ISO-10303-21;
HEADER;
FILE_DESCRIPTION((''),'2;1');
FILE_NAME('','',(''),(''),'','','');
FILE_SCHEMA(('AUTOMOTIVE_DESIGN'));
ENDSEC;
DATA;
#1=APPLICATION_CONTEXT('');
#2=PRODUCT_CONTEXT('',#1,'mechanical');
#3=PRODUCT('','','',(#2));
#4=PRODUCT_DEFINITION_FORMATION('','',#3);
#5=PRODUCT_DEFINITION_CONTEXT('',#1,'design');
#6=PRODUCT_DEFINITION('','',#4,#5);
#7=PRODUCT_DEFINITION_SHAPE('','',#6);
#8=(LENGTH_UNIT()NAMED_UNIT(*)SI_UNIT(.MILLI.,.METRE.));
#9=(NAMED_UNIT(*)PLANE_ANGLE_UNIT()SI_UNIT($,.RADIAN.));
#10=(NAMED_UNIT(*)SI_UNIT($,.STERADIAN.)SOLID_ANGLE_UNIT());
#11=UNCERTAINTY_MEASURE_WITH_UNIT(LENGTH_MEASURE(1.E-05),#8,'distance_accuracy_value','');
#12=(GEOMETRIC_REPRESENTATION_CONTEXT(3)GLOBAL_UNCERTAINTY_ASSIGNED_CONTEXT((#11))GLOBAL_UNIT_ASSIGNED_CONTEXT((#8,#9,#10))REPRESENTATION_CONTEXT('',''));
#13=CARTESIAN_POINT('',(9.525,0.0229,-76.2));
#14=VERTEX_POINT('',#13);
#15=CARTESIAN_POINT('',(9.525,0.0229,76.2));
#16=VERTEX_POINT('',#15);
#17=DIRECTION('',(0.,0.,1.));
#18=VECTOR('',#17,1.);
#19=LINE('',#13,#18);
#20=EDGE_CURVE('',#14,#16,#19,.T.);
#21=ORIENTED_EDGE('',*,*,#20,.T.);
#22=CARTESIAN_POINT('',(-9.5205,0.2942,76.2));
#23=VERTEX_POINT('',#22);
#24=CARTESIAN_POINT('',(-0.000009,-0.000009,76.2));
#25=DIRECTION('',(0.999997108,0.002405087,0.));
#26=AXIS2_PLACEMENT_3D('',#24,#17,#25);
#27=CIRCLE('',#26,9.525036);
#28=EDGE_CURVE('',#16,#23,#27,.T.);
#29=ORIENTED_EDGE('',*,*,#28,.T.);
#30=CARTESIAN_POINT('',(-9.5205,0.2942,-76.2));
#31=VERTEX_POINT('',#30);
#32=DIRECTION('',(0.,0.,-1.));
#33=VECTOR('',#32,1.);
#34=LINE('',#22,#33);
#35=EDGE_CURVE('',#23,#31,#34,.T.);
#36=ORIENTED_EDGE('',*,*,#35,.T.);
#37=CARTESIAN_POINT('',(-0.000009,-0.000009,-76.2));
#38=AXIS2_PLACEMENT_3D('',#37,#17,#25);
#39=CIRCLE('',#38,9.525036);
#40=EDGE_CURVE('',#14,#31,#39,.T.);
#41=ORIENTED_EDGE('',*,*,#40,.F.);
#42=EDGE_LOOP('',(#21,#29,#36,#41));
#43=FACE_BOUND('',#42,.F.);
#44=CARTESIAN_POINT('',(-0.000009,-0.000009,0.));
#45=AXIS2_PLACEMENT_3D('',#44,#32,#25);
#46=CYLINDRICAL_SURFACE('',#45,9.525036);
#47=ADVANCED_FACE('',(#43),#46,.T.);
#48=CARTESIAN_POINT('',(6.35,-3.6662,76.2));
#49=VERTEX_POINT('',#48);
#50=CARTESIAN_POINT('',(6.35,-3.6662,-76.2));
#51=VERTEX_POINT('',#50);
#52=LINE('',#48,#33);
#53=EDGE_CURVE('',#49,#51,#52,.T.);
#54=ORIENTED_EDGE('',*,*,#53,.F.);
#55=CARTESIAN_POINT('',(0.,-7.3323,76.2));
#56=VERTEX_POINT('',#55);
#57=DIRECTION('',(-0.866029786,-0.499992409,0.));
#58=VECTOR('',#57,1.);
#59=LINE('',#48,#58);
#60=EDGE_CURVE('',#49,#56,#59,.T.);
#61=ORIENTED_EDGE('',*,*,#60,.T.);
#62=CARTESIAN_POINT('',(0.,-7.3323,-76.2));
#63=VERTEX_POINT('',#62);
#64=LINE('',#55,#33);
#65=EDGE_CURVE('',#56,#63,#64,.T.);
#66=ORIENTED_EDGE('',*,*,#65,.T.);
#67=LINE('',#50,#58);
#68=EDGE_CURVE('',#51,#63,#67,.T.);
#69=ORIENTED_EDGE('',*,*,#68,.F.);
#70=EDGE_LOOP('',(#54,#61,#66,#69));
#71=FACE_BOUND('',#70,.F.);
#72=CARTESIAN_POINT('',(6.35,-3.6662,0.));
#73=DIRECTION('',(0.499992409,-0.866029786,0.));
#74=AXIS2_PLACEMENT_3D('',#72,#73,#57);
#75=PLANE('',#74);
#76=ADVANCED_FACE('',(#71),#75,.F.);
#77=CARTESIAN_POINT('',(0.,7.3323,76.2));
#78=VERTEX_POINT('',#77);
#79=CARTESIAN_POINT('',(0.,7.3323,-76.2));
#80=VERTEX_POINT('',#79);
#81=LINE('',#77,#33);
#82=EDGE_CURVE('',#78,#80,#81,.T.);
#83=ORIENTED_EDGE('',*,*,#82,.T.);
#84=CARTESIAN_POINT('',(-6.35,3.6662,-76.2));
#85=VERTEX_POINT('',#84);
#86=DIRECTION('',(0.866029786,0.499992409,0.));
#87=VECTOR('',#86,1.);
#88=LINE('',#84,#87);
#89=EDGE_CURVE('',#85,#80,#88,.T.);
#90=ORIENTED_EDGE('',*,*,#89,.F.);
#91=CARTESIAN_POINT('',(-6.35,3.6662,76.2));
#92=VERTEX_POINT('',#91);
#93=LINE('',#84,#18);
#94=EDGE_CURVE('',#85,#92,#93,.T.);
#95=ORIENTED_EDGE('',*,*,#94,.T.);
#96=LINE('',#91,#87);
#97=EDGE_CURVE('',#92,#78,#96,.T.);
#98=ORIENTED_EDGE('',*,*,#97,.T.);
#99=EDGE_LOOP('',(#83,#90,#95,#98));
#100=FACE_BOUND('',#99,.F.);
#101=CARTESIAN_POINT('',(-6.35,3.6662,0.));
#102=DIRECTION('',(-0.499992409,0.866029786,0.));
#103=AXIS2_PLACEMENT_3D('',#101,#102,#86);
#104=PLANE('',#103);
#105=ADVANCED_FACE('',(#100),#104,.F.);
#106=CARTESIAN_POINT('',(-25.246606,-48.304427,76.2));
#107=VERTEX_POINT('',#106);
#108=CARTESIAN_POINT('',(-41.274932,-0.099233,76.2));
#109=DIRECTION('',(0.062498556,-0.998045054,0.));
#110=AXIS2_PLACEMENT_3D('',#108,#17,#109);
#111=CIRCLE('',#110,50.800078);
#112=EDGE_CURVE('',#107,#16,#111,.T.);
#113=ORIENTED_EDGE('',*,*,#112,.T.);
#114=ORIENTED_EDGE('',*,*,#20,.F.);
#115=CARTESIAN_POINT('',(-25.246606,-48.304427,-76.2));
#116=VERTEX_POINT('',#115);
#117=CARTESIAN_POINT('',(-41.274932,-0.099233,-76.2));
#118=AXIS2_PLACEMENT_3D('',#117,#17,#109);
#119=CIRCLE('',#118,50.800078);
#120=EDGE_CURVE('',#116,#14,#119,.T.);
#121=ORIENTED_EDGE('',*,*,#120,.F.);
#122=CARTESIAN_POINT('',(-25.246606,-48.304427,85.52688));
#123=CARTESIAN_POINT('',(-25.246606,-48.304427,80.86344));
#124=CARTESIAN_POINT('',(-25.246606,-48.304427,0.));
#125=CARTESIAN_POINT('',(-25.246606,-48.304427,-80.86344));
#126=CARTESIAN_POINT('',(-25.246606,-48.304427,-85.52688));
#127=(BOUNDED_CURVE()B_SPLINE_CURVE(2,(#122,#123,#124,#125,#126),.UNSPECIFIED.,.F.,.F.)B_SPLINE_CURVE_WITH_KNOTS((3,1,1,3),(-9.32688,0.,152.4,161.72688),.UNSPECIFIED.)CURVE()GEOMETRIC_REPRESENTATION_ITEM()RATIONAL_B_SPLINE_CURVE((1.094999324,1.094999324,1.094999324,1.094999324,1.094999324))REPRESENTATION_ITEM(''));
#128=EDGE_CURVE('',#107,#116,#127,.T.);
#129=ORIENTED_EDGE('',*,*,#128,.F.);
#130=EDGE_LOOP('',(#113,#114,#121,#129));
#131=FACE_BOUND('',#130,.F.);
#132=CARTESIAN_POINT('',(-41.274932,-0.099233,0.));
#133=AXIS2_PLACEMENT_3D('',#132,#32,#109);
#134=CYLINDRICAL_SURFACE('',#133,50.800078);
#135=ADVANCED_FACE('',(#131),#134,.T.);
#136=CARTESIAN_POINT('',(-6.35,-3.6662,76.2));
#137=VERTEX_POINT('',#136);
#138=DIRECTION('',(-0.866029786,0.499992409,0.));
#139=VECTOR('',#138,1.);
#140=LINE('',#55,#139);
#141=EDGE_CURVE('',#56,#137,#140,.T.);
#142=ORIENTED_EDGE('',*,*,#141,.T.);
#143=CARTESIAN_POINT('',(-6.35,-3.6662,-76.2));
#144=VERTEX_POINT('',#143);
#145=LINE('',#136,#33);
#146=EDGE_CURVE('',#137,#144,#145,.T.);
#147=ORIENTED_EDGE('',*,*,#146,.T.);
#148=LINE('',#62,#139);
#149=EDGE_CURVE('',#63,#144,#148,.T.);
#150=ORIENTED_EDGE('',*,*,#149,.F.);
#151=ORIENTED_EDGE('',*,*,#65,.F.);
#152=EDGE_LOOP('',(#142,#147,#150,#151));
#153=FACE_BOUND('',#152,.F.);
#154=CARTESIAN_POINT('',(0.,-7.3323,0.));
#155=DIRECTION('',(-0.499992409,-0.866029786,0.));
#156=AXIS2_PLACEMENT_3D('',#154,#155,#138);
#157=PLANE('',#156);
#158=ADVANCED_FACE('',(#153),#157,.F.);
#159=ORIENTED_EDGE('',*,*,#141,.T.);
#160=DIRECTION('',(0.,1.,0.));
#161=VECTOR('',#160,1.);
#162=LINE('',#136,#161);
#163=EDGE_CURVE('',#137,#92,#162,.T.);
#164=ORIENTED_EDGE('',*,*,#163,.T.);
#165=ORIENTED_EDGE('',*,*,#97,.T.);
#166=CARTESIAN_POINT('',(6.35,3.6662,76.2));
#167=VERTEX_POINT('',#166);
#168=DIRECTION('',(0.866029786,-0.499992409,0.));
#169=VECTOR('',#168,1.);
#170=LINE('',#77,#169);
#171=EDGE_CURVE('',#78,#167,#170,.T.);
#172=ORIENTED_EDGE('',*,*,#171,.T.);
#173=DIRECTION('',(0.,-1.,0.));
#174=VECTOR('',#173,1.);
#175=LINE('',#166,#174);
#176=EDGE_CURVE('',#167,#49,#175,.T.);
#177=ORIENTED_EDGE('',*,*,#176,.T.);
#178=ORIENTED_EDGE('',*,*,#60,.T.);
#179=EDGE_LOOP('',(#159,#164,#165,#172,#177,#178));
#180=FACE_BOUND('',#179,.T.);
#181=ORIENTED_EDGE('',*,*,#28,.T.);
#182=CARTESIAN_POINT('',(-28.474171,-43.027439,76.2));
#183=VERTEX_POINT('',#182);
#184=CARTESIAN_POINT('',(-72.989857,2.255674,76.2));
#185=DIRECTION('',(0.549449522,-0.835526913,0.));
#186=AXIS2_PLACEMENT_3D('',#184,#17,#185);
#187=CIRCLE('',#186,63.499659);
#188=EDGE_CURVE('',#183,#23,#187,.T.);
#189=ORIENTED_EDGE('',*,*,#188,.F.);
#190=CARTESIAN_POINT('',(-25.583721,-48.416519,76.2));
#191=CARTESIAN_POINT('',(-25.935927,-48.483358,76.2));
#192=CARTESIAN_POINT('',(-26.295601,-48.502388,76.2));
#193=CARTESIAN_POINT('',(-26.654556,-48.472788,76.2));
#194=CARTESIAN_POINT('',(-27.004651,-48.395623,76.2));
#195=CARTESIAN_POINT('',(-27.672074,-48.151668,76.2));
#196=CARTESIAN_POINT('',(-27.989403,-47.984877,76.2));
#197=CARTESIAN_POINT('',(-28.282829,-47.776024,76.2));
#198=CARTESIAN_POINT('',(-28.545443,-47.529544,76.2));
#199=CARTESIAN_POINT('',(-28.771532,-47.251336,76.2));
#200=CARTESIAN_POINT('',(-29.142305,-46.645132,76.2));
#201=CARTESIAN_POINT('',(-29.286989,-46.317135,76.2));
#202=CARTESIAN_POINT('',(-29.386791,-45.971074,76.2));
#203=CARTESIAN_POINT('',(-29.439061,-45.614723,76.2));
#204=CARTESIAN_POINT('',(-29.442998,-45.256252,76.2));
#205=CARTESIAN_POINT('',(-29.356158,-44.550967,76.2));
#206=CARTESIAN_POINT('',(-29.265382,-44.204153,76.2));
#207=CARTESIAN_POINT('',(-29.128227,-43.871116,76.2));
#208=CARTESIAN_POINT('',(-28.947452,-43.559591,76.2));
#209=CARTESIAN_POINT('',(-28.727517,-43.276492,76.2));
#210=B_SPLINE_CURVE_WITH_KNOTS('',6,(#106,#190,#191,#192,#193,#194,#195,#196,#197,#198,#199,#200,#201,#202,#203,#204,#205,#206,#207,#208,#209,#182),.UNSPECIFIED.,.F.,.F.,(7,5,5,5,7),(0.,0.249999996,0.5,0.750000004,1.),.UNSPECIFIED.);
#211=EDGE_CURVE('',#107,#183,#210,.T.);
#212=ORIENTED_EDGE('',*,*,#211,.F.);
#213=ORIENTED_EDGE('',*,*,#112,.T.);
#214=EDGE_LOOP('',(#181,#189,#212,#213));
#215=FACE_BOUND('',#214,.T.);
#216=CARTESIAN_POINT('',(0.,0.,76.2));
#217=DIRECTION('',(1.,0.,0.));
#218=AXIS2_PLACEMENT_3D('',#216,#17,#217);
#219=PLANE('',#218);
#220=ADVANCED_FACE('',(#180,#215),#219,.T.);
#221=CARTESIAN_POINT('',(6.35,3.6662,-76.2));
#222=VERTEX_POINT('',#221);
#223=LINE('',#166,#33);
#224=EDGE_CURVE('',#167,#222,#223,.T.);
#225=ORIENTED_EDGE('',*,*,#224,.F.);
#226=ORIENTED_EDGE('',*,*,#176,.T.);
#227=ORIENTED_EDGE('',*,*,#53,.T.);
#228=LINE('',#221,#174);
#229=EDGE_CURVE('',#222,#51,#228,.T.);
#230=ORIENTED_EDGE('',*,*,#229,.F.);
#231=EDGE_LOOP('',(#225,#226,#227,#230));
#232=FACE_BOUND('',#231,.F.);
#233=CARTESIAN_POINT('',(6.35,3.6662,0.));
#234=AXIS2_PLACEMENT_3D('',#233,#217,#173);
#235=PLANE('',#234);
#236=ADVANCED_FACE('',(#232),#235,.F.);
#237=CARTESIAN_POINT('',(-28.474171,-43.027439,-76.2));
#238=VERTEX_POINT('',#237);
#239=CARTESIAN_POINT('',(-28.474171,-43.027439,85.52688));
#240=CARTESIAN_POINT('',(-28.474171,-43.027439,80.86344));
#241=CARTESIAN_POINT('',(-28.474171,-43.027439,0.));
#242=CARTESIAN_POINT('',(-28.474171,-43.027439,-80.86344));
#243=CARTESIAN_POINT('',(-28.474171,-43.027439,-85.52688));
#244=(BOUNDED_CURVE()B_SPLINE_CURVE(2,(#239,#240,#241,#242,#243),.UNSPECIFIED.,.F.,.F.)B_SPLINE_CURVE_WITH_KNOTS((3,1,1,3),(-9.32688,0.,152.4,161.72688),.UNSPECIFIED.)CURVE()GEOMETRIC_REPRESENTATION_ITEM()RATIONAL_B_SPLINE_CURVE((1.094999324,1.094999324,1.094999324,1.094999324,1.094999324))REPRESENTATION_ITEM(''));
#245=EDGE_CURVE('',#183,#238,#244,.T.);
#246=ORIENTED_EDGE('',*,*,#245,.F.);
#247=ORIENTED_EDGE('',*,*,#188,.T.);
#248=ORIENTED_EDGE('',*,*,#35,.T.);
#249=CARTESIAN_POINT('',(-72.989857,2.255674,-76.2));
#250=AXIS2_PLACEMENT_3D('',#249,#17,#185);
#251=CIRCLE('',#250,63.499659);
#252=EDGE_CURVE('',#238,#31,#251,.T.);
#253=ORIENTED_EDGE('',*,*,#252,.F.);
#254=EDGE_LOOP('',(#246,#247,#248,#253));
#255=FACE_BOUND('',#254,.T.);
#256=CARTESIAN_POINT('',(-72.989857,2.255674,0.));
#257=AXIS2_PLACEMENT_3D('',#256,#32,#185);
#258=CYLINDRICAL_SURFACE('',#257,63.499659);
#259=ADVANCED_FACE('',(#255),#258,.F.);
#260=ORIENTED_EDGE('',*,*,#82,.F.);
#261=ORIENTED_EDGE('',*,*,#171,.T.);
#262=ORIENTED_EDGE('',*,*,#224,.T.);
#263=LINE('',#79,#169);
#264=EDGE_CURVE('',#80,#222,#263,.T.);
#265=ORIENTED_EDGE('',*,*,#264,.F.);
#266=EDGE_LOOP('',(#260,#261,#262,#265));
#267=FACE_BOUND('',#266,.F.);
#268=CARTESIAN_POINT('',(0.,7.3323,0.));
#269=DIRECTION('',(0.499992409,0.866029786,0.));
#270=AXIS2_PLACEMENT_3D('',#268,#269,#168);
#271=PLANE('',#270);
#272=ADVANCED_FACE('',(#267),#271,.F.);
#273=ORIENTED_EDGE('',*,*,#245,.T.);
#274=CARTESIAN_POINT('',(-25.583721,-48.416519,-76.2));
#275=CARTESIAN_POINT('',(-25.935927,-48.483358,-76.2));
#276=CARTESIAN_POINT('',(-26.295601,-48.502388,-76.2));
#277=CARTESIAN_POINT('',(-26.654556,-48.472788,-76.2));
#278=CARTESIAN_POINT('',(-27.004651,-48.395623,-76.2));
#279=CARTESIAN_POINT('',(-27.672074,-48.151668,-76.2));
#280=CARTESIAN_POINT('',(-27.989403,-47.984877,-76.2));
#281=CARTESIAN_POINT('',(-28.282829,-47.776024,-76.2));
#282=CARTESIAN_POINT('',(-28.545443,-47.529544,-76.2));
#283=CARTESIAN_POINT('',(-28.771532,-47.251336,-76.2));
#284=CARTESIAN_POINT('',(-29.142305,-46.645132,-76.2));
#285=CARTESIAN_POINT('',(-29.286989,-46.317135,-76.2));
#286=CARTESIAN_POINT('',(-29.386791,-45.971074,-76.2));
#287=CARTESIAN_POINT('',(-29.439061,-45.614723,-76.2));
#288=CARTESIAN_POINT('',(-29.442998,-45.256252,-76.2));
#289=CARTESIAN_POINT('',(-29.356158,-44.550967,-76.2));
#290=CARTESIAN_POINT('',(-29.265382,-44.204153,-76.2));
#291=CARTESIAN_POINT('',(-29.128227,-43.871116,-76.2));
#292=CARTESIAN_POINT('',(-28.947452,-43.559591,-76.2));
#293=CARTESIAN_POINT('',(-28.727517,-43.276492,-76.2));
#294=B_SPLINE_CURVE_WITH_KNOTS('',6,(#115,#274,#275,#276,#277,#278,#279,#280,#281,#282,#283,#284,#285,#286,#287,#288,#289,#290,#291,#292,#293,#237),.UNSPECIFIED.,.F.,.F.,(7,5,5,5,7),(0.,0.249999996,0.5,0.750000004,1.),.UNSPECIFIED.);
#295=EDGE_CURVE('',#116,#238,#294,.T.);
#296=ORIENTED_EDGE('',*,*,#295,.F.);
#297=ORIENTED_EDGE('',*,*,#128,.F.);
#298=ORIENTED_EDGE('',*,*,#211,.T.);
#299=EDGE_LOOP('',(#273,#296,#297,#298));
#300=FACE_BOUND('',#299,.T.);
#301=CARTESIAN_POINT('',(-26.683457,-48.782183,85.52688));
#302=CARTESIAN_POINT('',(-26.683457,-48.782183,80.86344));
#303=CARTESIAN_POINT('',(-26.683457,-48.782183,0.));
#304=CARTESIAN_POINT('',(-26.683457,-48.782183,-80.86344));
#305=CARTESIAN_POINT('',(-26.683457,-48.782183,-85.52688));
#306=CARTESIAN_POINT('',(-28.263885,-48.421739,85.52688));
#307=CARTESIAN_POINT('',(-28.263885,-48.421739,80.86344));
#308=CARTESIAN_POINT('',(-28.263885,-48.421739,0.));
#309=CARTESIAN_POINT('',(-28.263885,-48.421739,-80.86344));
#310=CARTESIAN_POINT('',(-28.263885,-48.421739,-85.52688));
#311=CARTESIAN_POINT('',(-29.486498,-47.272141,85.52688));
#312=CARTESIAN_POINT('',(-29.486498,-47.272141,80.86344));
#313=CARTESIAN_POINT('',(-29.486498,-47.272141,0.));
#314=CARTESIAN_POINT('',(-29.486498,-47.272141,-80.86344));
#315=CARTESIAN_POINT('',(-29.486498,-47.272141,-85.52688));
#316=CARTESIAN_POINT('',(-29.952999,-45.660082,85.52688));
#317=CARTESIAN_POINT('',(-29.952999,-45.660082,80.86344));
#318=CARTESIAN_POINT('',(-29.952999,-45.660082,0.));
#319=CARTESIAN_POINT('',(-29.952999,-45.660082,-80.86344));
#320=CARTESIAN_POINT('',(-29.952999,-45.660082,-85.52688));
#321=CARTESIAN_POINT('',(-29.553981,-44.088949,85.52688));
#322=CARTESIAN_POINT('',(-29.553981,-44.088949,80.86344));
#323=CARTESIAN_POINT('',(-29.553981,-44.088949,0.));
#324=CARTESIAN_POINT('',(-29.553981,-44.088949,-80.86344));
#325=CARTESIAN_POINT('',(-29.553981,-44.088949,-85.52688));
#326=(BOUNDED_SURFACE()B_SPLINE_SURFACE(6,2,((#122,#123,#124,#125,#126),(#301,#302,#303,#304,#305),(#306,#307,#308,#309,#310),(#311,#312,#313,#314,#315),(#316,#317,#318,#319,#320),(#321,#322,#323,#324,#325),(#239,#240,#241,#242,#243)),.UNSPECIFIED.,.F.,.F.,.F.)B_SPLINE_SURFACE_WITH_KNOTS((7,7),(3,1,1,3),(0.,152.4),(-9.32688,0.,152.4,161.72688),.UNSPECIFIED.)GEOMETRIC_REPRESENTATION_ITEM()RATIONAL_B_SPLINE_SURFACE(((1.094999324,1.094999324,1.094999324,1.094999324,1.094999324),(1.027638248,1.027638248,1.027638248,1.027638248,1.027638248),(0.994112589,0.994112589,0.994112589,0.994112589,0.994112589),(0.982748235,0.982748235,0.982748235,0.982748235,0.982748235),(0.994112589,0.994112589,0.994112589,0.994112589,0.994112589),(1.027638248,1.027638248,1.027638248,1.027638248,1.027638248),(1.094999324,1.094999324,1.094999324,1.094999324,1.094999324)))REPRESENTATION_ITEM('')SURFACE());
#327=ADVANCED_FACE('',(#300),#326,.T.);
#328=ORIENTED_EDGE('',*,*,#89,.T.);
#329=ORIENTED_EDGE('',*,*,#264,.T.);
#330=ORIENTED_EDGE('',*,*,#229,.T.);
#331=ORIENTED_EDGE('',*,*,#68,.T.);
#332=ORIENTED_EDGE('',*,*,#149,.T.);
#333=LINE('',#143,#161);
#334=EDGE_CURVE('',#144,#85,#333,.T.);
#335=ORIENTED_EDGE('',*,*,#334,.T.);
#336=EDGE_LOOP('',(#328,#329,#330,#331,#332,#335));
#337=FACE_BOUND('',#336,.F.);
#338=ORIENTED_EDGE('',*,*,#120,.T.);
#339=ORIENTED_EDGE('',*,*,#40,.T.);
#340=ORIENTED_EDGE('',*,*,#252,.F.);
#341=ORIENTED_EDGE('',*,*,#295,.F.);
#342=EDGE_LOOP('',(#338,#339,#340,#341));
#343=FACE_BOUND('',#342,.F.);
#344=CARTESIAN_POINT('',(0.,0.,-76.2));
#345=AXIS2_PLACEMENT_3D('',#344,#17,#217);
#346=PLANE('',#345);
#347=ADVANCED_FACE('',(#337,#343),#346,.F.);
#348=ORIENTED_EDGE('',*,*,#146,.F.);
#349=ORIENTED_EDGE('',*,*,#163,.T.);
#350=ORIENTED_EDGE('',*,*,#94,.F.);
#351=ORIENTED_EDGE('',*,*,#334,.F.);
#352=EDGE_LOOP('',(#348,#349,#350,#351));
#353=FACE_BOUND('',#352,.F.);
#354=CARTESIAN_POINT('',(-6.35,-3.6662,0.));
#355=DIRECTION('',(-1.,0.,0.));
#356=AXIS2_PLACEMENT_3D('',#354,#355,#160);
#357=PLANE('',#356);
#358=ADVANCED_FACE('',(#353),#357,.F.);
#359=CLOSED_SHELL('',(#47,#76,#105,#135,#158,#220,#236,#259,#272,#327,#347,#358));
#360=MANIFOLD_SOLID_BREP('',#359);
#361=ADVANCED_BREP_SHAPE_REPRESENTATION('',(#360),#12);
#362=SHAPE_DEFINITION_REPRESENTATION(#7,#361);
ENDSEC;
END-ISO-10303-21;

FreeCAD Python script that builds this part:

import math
import FreeCAD as App
import Part
import Sketcher
from FreeCAD import Vector
Q = App.Units.Quantity


def edges_at(feature, points):
    """Names of the edges that pass closest to the given points."""
    edges = feature.Shape.Edges
    near = lambda p: min(range(len(edges)), key=lambda i: edges[i].distToShape(Part.Vertex(*p))[0])
    return sorted({f"Edge{near(p) + 1}" for p in points})

doc = App.newDocument("Part")
params = doc.addObject("Spreadsheet::Sheet", "Params")
for row, (alias, value) in enumerate([
    ("sketch1_radius", "2 in"),
    ("sketch1_radius2", "2.5 in"),
    ("sketch1_radius3", "0.375 in"),
    ("pad1_length", "6 in"),
    ("fillet_radius", "0.125 in"),
], start=1):
    params.set(f"A{row}", alias)
    params.set(f"B{row}", "=" + value)
    params.setAlias(f"B{row}", alias)

body = doc.addObject("PartDesign::Body", "Body")

# Sketch on XY plane
sketch1 = body.newObject("Sketcher::SketchObject", "Sketch")
sketch1.AttachmentSupport = (doc.getObject("XY_Plane"), [""])
sketch1.MapMode = "FlatFace"
sketch1.addGeometry([
    Part.ArcOfCircle(Part.Circle(Vector(-41, 0, 0), Vector(0, 0, 1), 51), math.radians(-86), math.radians(0)),  # 0
    Part.ArcOfCircle(Part.Circle(Vector(0, 0, 0), Vector(0, 0, 1), 10), math.radians(0), math.radians(178)),  # 1
    Part.ArcOfCircle(Part.Circle(Vector(-73, 2, 0), Vector(0, 0, 1), 63), math.radians(-57), math.radians(-2)),  # 2
    Part.LineSegment(Vector(-6, -4, 0), Vector(-6, 4, 0)),  # 3
    Part.LineSegment(Vector(-6, 4, 0), Vector(0, 7, 0)),  # 4
    Part.LineSegment(Vector(0, 7, 0), Vector(6, 4, 0)),  # 5
    Part.LineSegment(Vector(6, 4, 0), Vector(6, -4, 0)),  # 6
    Part.LineSegment(Vector(6, -4, 0), Vector(0, -7, 0)),  # 7
    Part.LineSegment(Vector(0, -7, 0), Vector(-6, -4, 0)),  # 8
], False)
sketch1.addConstraint([
    Sketcher.Constraint("Tangent", 0, 2, 1, 1),
    Sketcher.Constraint("Tangent", 1, 2, 2, 2),
    Sketcher.Constraint("Coincident", 2, 1, 0, 1),
    Sketcher.Constraint("Coincident", 3, 2, 4, 1),
    Sketcher.Constraint("Coincident", 4, 2, 5, 1),
    Sketcher.Constraint("Coincident", 5, 2, 6, 1),
    Sketcher.Constraint("Coincident", 6, 2, 7, 1),
    Sketcher.Constraint("Coincident", 7, 2, 8, 1),
    Sketcher.Constraint("Coincident", 8, 2, 3, 1),
    Sketcher.Constraint("Vertical", 3),
    Sketcher.Constraint("Vertical", 6),
    Sketcher.Constraint("Coincident", 1, 3, -1, 1),
    Sketcher.Constraint("Symmetric", 3, 2, 6, 2, -1, 1),
    Sketcher.Constraint("Symmetric", 4, 2, 7, 2, -1, 1),
    Sketcher.Constraint("PointOnObject", 4, 2, -2),
    Sketcher.Constraint("Parallel", 5, 8),
    Sketcher.Constraint("Horizontal", 3, 2, 5, 2),
    Sketcher.Constraint("Radius", 0, Q("2 in")),
    Sketcher.Constraint("Radius", 2, Q("2.5 in")),
    Sketcher.Constraint("DistanceY", 2, 1, -1, 1, Q("2 in")),
    Sketcher.Constraint("Radius", 1, Q("0.375 in")),
    Sketcher.Constraint("DistanceX", 2, 1, -1, 1, Q("1.5 in")),
    Sketcher.Constraint("DistanceX", 3, 2, 5, 2, Q("0.5 in")),
    Sketcher.Constraint("Angle", 4, Q("29.9995 deg")),
    Sketcher.Constraint("DistanceY", 6, 2, 4, 2, Q("0.433 in")),
])
sketch1.setExpression("Constraints[17]", "Params.sketch1_radius")
sketch1.setExpression("Constraints[18]", "Params.sketch1_radius2")
sketch1.setExpression("Constraints[20]", "Params.sketch1_radius3")
pad1 = body.newObject("PartDesign::Pad", "Pad")
pad1.Profile = sketch1
pad1.setExpression("Length", "Params.pad1_length")
pad1.Midplane = True
doc.recompute()

fillet = body.newObject("PartDesign::Fillet", "Fillet")
fillet.Base = (pad1, edges_at(pad1, [(-38.1, -50.8, 0)]))
fillet.setExpression("Radius", "Params.fillet_radius")

doc.recompute()
